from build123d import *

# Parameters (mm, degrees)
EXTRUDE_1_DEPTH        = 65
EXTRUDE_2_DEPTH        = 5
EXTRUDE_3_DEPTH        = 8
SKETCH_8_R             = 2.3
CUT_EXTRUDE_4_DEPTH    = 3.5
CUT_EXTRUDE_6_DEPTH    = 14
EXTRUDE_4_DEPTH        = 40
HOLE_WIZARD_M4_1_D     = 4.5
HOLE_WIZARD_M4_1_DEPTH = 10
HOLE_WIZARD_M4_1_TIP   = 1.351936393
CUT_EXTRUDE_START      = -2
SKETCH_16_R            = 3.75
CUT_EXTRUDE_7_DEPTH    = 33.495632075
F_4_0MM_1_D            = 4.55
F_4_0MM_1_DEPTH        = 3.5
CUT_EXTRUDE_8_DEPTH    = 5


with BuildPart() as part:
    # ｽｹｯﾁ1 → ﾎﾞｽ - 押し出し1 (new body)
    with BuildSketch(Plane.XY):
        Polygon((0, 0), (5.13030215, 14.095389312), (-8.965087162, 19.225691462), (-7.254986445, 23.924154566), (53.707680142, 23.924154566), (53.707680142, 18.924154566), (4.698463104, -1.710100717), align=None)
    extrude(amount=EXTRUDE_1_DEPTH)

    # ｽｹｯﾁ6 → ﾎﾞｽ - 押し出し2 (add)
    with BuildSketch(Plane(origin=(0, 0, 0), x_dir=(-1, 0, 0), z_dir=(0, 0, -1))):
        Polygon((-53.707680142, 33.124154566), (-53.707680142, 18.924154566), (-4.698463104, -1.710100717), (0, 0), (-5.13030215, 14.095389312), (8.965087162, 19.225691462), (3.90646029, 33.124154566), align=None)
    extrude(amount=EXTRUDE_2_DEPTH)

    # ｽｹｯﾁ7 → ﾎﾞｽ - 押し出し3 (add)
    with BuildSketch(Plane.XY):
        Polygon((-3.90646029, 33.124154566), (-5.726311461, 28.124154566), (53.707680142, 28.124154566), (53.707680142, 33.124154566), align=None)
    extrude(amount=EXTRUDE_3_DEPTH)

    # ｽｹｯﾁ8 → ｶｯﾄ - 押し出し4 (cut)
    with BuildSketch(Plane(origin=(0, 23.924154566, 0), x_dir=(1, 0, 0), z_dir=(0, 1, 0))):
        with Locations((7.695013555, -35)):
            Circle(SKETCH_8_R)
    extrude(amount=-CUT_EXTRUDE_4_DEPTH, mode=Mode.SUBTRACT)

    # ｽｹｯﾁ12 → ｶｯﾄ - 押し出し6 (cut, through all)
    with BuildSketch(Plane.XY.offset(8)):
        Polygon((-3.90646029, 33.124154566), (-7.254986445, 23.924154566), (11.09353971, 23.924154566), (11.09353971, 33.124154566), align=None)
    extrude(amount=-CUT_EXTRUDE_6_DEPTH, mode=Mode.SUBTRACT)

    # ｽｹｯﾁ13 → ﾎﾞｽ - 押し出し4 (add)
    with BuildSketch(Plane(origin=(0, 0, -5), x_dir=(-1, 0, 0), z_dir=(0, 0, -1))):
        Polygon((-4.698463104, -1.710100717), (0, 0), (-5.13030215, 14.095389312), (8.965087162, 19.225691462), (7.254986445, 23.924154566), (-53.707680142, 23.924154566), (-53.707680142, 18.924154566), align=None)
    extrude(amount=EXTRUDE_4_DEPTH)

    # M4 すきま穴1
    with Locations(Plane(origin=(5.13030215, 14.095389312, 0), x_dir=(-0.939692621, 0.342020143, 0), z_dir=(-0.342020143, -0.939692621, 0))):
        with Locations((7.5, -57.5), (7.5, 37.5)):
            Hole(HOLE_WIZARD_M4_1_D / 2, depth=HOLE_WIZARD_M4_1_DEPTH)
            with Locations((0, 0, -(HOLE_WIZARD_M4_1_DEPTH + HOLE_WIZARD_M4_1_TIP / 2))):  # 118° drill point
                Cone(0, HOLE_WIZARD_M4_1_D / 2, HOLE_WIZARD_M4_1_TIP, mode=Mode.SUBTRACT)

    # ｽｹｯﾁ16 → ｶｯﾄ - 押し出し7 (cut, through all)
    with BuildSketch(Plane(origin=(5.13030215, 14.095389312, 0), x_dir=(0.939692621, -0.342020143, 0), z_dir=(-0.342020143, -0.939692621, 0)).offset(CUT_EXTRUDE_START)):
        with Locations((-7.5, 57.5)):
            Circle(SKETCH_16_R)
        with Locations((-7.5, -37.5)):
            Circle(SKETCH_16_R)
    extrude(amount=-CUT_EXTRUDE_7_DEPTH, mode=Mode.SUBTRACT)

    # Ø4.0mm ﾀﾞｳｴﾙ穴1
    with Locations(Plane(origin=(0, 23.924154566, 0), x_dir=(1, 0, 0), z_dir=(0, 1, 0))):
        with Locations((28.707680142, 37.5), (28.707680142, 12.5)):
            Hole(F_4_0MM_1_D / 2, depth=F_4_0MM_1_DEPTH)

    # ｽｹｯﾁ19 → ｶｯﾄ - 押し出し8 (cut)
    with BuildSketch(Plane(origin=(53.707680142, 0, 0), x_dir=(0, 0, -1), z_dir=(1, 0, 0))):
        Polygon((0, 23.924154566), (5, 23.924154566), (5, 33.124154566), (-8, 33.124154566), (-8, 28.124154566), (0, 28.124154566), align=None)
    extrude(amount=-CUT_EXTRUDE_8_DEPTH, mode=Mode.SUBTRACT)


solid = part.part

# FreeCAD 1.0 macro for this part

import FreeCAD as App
import Part
import Sketcher

V = App.Vector
Q = App.Units.Quantity


def add_polygon(sketch, points):
    """Adds a closed chain of lines whose ends are joined by coincident constraints."""
    first, n = sketch.GeometryCount, len(points)
    for a, b in zip(points, points[1:] + points[:1]):
        sketch.addGeometry(Part.LineSegment(App.Vector(*a, 0), App.Vector(*b, 0)), False)
    for i in range(n):
        sketch.addConstraint(Sketcher.Constraint("Coincident", first + i, 2, first + (i + 1) % n, 1))

doc = App.newDocument("Part")
body = doc.addObject("PartDesign::Body", "Body")

# Sketch on XY plane
sketch1 = body.newObject("Sketcher::SketchObject", "Sketch")
sketch1.AttachmentSupport = (doc.getObject("XY_Plane"), [""])
sketch1.MapMode = "FlatFace"
add_polygon(sketch1, [(5, 14), (0, 0), (5, -2), (54, 19), (54, 24), (-7, 24), (-9, 19)])  # lines 0-6
sketch1.addConstraint(Sketcher.Constraint("Vertical", 3))
sketch1.addConstraint(Sketcher.Constraint("Horizontal", 4))
sketch1.addConstraint(Sketcher.Constraint("Coincident", 0, 2, -1, 1))
sketch1.addConstraint(Sketcher.Constraint("Perpendicular", 0, 1))
sketch1.addConstraint(Sketcher.Constraint("Perpendicular", 1, 5))
sketch1.addConstraint(Sketcher.Constraint("Perpendicular", 5, 6))
sketch1.addConstraint(Sketcher.Constraint("Equal", 1, 5))
sketch1.addConstraint(Sketcher.Constraint("Equal", 0, 6))
sketch1.addConstraint(Sketcher.Constraint("DistanceY", 3, 1, 3, 2, Q("5 mm")))
sketch1.addConstraint(Sketcher.Constraint("Angle", 0, Q("-110 deg")))
sketch1.addConstraint(Sketcher.Constraint("Distance", 0, Q("15 mm")))
sketch1.addConstraint(Sketcher.Constraint("Distance", 1, Q("5 mm")))
sketch1.addConstraint(Sketcher.Constraint("DistanceX", 4, 2, 4, 1, Q("60.962667 mm")))
pad1 = body.newObject("PartDesign::Pad", "Pad")
pad1.Profile = sketch1
pad1.Length = 65

# Sketch on XY plane
sketch2 = body.newObject("Sketcher::SketchObject", "Sketch001")
sketch2.AttachmentSupport = (doc.getObject("XY_Plane"), [""])
sketch2.MapMode = "FlatFace"
add_polygon(sketch2, [(54, 33), (54, 19), (5, -2), (0, 0), (5, 14), (-9, 19), (-4, 33)])  # lines 0-6
sketch2.addConstraint(Sketcher.Constraint("Vertical", 0))
sketch2.addConstraint(Sketcher.Constraint("Horizontal", 6))
sketch2.addConstraint(Sketcher.Constraint("Coincident", 2, 2, -1, 1))
sketch2.addConstraint(Sketcher.Constraint("Perpendicular", 2, 3))
sketch2.addConstraint(Sketcher.Constraint("Perpendicular", 3, 4))
sketch2.addConstraint(Sketcher.Constraint("Perpendicular", 4, 5))
sketch2.addConstraint(Sketcher.Constraint("Equal", 3, 4))
sketch2.addConstraint(Sketcher.Constraint("Angle", 2, Q("160 deg")))
sketch2.addConstraint(Sketcher.Constraint("Distance", 2, Q("5 mm")))
sketch2.addConstraint(Sketcher.Constraint("Distance", 3, Q("15 mm")))
sketch2.addConstraint(Sketcher.Constraint("DistanceY", 0, 2, 0, 1, Q("14.2 mm")))
sketch2.addConstraint(Sketcher.Constraint("DistanceX", 6, 1, 6, 2, Q("57.61414 mm")))
sketch2.addConstraint(Sketcher.Constraint("DistanceX", -1, 1, 0, 2, Q("53.70768 mm")))
pad2 = body.newObject("PartDesign::Pad", "Pad001")
pad2.Profile = sketch2
pad2.Length = 5
pad2.Reversed = True

# Sketch on XY plane
sketch3 = body.newObject("Sketcher::SketchObject", "Sketch002")
sketch3.AttachmentSupport = (doc.getObject("XY_Plane"), [""])
sketch3.MapMode = "FlatFace"
add_polygon(sketch3, [(-4, 33), (-6, 28), (54, 28), (54, 33)])  # lines 0-3
sketch3.addConstraint(Sketcher.Constraint("Horizontal", 1))
sketch3.addConstraint(Sketcher.Constraint("Vertical", 2))
sketch3.addConstraint(Sketcher.Constraint("Horizontal", 3))
sketch3.addConstraint(Sketcher.Constraint("DistanceY", 2, 1, 2, 2, Q("5 mm")))
sketch3.addConstraint(Sketcher.Constraint("Angle", 0, Q("-110 deg")))
sketch3.addConstraint(Sketcher.Constraint("DistanceX", 1, 1, 1, 2, Q("59.433992 mm")))
sketch3.addConstraint(Sketcher.Constraint("DistanceX", 0, 2, -1, 1, Q("5.726311 mm")))
sketch3.addConstraint(Sketcher.Constraint("DistanceY", -1, 1, 0, 2, Q("28.124155 mm")))
pad3 = body.newObject("PartDesign::Pad", "Pad002")
pad3.Profile = sketch3
pad3.Length = 8

# Sketch on XZ plane
sketch4 = body.newObject("Sketcher::SketchObject", "Sketch003")
sketch4.AttachmentSupport = (doc.getObject("XZ_Plane"), [""])
sketch4.MapMode = "FlatFace"
sketch4.AttachmentOffset = App.Placement(V(0, 0, -23.924155), App.Rotation())
sketch4.addGeometry(Part.Circle(V(7.7, 35, 0), V(0, 0, 1), 2.3), False)
sketch4.addConstraint(Sketcher.Constraint("Diameter", 0, Q("4.6 mm")))
sketch4.addConstraint(Sketcher.Constraint("DistanceY", -1, 1, 0, 3, Q("35 mm")))
sketch4.addConstraint(Sketcher.Constraint("DistanceX", -1, 1, 0, 3, Q("7.695014 mm")))
pocket1 = body.newObject("PartDesign::Pocket", "Pocket")
pocket1.Profile = sketch4
pocket1.Length = 3.5
pocket1.Reversed = True

# Sketch on XY plane
sketch5 = body.newObject("Sketcher::SketchObject", "Sketch004")
sketch5.AttachmentSupport = (doc.getObject("XY_Plane"), [""])
sketch5.MapMode = "FlatFace"
sketch5.AttachmentOffset = App.Placement(V(0, 0, 8), App.Rotation())
add_polygon(sketch5, [(-4, 33), (-7, 24), (11, 24), (11, 33)])  # lines 0-3
sketch5.addConstraint(Sketcher.Constraint("Horizontal", 1))
sketch5.addConstraint(Sketcher.Constraint("Vertical", 2))
sketch5.addConstraint(Sketcher.Constraint("Horizontal", 3))
sketch5.addConstraint(Sketcher.Constraint("DistanceX", 3, 2, 3, 1, Q("15 mm")))
sketch5.addConstraint(Sketcher.Constraint("Angle", 0, Q("-110 deg")))
sketch5.addConstraint(Sketcher.Constraint("DistanceY", 2, 1, 2, 2, Q("9.2 mm")))
sketch5.addConstraint(Sketcher.Constraint("DistanceX", -1, 1, 1, 2, Q("11.09354 mm")))
sketch5.addConstraint(Sketcher.Constraint("DistanceY", -1, 1, 0, 2, Q("23.924155 mm")))
pocket2 = body.newObject("PartDesign::Pocket", "Pocket001")
pocket2.Profile = sketch5
pocket2.Type = "ThroughAll"

# Sketch on XY plane
sketch6 = body.newObject("Sketcher::SketchObject", "Sketch005")
sketch6.AttachmentSupport = (doc.getObject("XY_Plane"), [""])
sketch6.MapMode = "FlatFace"
sketch6.AttachmentOffset = App.Placement(V(0, 0, -5), App.Rotation())
add_polygon(sketch6, [(5, -2), (0, 0), (5, 14), (-9, 19), (-7, 24), (54, 24), (54, 19)])  # lines 0-6
sketch6.addConstraint(Sketcher.Constraint("Horizontal", 4))
sketch6.addConstraint(Sketcher.Constraint("Vertical", 5))
sketch6.addConstraint(Sketcher.Constraint("Coincident", 0, 2, -1, 1))
sketch6.addConstraint(Sketcher.Constraint("Perpendicular", 0, 1))
sketch6.addConstraint(Sketcher.Constraint("Perpendicular", 1, 2))
sketch6.addConstraint(Sketcher.Constraint("Perpendicular", 2, 3))
sketch6.addConstraint(Sketcher.Constraint("Equal", 1, 2))
sketch6.addConstraint(Sketcher.Constraint("Equal", 0, 3))
sketch6.addConstraint(Sketcher.Constraint("DistanceY", 5, 2, 5, 1, Q("5 mm")))
sketch6.addConstraint(Sketcher.Constraint("Angle", 0, Q("160 deg")))
sketch6.addConstraint(Sketcher.Constraint("Distance", 0, Q("5 mm")))
sketch6.addConstraint(Sketcher.Constraint("Distance", 1, Q("15 mm")))
sketch6.addConstraint(Sketcher.Constraint("DistanceX", 4, 1, 4, 2, Q("60.962667 mm")))
pad4 = body.newObject("PartDesign::Pad", "Pad003")
pad4.Profile = sketch6
pad4.Length = 40
pad4.Reversed = True

# Sketch on an angled plane
sketch7 = body.newObject("Sketcher::SketchObject", "Sketch006")
sketch7.Placement = App.Placement(V(5.130302, 14.095389, 0), App.Rotation(V(-0.939692621, 0.342020143, 0), V(0, 0, -1), V(-0.342020143, -0.939692621, 0), "ZXY"))
sketch7.addGeometry(Part.Circle(V(7.5, -57.5, 0), V(0, 0, 1), 2.2), False)
sketch7.addGeometry(Part.Circle(V(7.5, 37.5, 0), V(0, 0, 1), 2.2), False)
sketch7.addConstraint(Sketcher.Constraint("Equal", 0, 1))
sketch7.addConstraint(Sketcher.Constraint("Vertical", 0, 3, 1, 3))
sketch7.addConstraint(Sketcher.Constraint("Diameter", 0, Q("4.5 mm")))
sketch7.addConstraint(Sketcher.Constraint("DistanceY", 0, 3, 1, 3, Q("95 mm")))
sketch7.addConstraint(Sketcher.Constraint("DistanceX", -1, 1, 0, 3, Q("7.5 mm")))
sketch7.addConstraint(Sketcher.Constraint("DistanceY", 0, 3, -1, 1, Q("57.5 mm")))
doc.recompute()
hole = body.newObject("PartDesign::Hole", "Hole")
hole.Profile = sketch7
hole.ThreadType = "None"
hole.Diameter = 4.5
hole.DepthType = "Dimension"
hole.Depth = 10
hole.DrillPoint = "Angled"
hole.DrillPointAngle = 118

# Sketch on an angled plane
sketch8 = body.newObject("Sketcher::SketchObject", "Sketch007")
sketch8.Placement = App.Placement(V(5.814342, 15.974775, 0), App.Rotation(V(0.939692621, -0.342020143, 0), V(0, 0, 1), V(-0.342020143, -0.939692621, 0), "ZXY"))
sketch8.addGeometry(Part.Circle(V(-7.5, 57.5, 0), V(0, 0, 1), 3.8), False)
sketch8.addGeometry(Part.Circle(V(-7.5, -37.5, 0), V(0, 0, 1), 3.8), False)
sketch8.addConstraint(Sketcher.Constraint("Equal", 0, 1))
sketch8.addConstraint(Sketcher.Constraint("Vertical", 0, 3, 1, 3))
sketch8.addConstraint(Sketcher.Constraint("Diameter", 0, Q("7.5 mm")))
sketch8.addConstraint(Sketcher.Constraint("DistanceY", 1, 3, 0, 3, Q("95 mm")))
sketch8.addConstraint(Sketcher.Constraint("DistanceX", 0, 3, -1, 1, Q("7.5 mm")))
sketch8.addConstraint(Sketcher.Constraint("DistanceY", -1, 1, 0, 3, Q("57.5 mm")))
pocket3 = body.newObject("PartDesign::Pocket", "Pocket002")
pocket3.Profile = sketch8
pocket3.Type = "ThroughAll"

# Sketch on XZ plane
sketch9 = body.newObject("Sketcher::SketchObject", "Sketch008")
sketch9.AttachmentSupport = (doc.getObject("XZ_Plane"), [""])
sketch9.MapMode = "FlatFace"
sketch9.AttachmentOffset = App.Placement(V(0, 0, -23.924155), App.Rotation())
sketch9.addGeometry(Part.Circle(V(28.7, -37.5, 0), V(0, 0, 1), 2.3), False)
sketch9.addGeometry(Part.Circle(V(28.7, -12.5, 0), V(0, 0, 1), 2.3), False)
sketch9.addConstraint(Sketcher.Constraint("Equal", 0, 1))
sketch9.addConstraint(Sketcher.Constraint("Vertical", 0, 3, 1, 3))
sketch9.addConstraint(Sketcher.Constraint("Diameter", 0, Q("4.55 mm")))
sketch9.addConstraint(Sketcher.Constraint("DistanceY", 0, 3, 1, 3, Q("25 mm")))
sketch9.addConstraint(Sketcher.Constraint("DistanceY", 0, 3, -1, 1, Q("37.5 mm")))
sketch9.addConstraint(Sketcher.Constraint("DistanceX", -1, 1, 0, 3, Q("28.70768 mm")))
doc.recompute()
hole2 = body.newObject("PartDesign::Hole", "Hole001")
hole2.Profile = sketch9
hole2.ThreadType = "None"
hole2.Diameter = 4.55
hole2.DepthType = "Dimension"
hole2.Depth = 3.5
hole2.DrillPoint = "Flat"
hole2.Reversed = True

# Sketch on YZ plane
sketch10 = body.newObject("Sketcher::SketchObject", "Sketch009")
sketch10.AttachmentSupport = (doc.getObject("YZ_Plane"), [""])
sketch10.MapMode = "FlatFace"
sketch10.AttachmentOffset = App.Placement(V(0, 0, 53.70768), App.Rotation())
add_polygon(sketch10, [(23.9, 0), (23.9, -5), (33.1, -5), (33.1, 8), (28.1, 8), (28.1, 0)])  # lines 0-5
sketch10.addConstraint(Sketcher.Constraint("Vertical", 0))
sketch10.addConstraint(Sketcher.Constraint("Horizontal", 1))
sketch10.addConstraint(Sketcher.Constraint("Vertical", 2))
sketch10.addConstraint(Sketcher.Constraint("Horizontal", 3))
sketch10.addConstraint(Sketcher.Constraint("Vertical", 4))
sketch10.addConstraint(Sketcher.Constraint("Horizontal", 5))
sketch10.addConstraint(Sketcher.Constraint("PointOnObject", 4, 2, -1))
sketch10.addConstraint(Sketcher.Constraint("Equal", 3, 0))
sketch10.addConstraint(Sketcher.Constraint("DistanceX", 3, 2, 3, 1, Q("5 mm")))
sketch10.addConstraint(Sketcher.Constraint("DistanceY", 2, 1, 2, 2, Q("13 mm")))
sketch10.addConstraint(Sketcher.Constraint("DistanceX", 1, 1, 1, 2, Q("9.2 mm")))
sketch10.addConstraint(Sketcher.Constraint("DistanceX", -1, 1, 0, 2, Q("23.924155 mm")))
pocket4 = body.newObject("PartDesign::Pocket", "Pocket003")
pocket4.Profile = sketch10
pocket4.Length = 5

doc.recompute()
